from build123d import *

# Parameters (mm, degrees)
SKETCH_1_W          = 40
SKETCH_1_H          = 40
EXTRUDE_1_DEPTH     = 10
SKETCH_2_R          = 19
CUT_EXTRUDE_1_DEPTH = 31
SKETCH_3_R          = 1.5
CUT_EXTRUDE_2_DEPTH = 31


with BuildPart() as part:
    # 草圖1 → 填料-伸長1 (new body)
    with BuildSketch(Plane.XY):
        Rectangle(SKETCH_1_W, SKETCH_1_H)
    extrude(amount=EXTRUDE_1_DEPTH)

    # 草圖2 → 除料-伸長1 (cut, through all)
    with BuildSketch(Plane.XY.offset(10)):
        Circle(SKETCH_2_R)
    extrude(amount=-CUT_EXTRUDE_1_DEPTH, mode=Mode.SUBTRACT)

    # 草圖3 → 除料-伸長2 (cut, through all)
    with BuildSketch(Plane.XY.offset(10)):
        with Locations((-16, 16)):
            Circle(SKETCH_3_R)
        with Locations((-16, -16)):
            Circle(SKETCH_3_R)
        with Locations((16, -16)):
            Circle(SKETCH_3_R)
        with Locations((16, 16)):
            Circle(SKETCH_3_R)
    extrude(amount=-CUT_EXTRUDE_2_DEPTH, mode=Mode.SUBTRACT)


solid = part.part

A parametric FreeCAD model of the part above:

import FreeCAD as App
import Part
import Sketcher
from FreeCAD import Vector
Q = App.Units.Quantity


def add_polygon(sketch, points):
    """Adds a closed chain of lines whose ends are joined by coincident constraints."""
    first, n = sketch.GeometryCount, len(points)
    for a, b in zip(points, points[1:] + points[:1]):
        sketch.addGeometry(Part.LineSegment(App.Vector(*a, 0), App.Vector(*b, 0)), False)
    for i in range(n):
        sketch.addConstraint(Sketcher.Constraint("Coincident", first + i, 2, first + (i + 1) % n, 1))

doc = App.newDocument("Part")
params = doc.addObject("Spreadsheet::Sheet", "Params")
for row, (alias, value) in enumerate([
    ("sketch1_width", "40 mm"),
    ("pad1_length", "10 mm"),
    ("sketch2_diameter", "38 mm"),
    ("sketch3_diameter", "3 mm"),
], start=1):
    params.set(f"A{row}", alias)
    params.set(f"B{row}", "=" + value)
    params.setAlias(f"B{row}", alias)

body = doc.addObject("PartDesign::Body", "Body")

sketch1 = body.newObject("Sketcher::SketchObject", "Sketch")
sketch1.AttachmentSupport = (doc.getObject("XY_Plane"), [""])
sketch1.MapMode = "FlatFace"
add_polygon(sketch1, [(-20, 20), (-20, -20), (20, -20), (20, 20)])
sketch1.addConstraint([
    Sketcher.Constraint("Vertical", 0),
    Sketcher.Constraint("Horizontal", 1),
    Sketcher.Constraint("Vertical", 2),
    Sketcher.Constraint("Horizontal", 3),
    Sketcher.Constraint("Symmetric", 0, 2, 2, 2, -1, 1),
    Sketcher.Constraint("Equal", 3, 0),
    Sketcher.Constraint("DistanceX", 1, 1, 1, 2, Q("40 mm")),
])
sketch1.setExpression("Constraints[10]", "Params.sketch1_width")
pad1 = body.newObject("PartDesign::Pad", "Pad")
pad1.Profile = sketch1
pad1.setExpression("Length", "Params.pad1_length")

sketch2 = body.newObject("Sketcher::SketchObject", "Sketch001")
sketch2.AttachmentSupport = (doc.getObject("XY_Plane"), [""])
sketch2.MapMode = "FlatFace"
sketch2.AttachmentOffset = App.Placement(Vector(0, 0, 10), App.Rotation())
sketch2.addGeometry(Part.Circle(Vector(0, 0, 0), Vector(0, 0, 1), 19), False)
sketch2.addConstraint([
    Sketcher.Constraint("Coincident", 0, 3, -1, 1),
    Sketcher.Constraint("Diameter", 0, Q("38 mm")),
])
sketch2.setExpression("Constraints[1]", "Params.sketch2_diameter")
pocket1 = body.newObject("PartDesign::Pocket", "Pocket")
pocket1.Profile = sketch2
pocket1.Type = "ThroughAll"

sketch3 = body.newObject("Sketcher::SketchObject", "Sketch002")
sketch3.AttachmentSupport = (doc.getObject("XY_Plane"), [""])
sketch3.MapMode = "FlatFace"
sketch3.AttachmentOffset = App.Placement(Vector(0, 0, 10), App.Rotation())
sketch3.addGeometry([
    Part.Circle(Vector(-16, 16, 0), Vector(0, 0, 1), 1.5),
    Part.Circle(Vector(-16, -16, 0), Vector(0, 0, 1), 1.5),
    Part.Circle(Vector(16, -16, 0), Vector(0, 0, 1), 1.5),
    Part.Circle(Vector(16, 16, 0), Vector(0, 0, 1), 1.5),
], False)
sketch3.addConstraint([
    Sketcher.Constraint("Equal", 0, 1),
    Sketcher.Constraint("Equal", 1, 2),
    Sketcher.Constraint("Equal", 2, 3),
    Sketcher.Constraint("Symmetric", 0, 3, 2, 3, -1, 1),
    Sketcher.Constraint("Symmetric", 1, 3, 3, 3, -1, 1),
    Sketcher.Constraint("Symmetric", 1, 3, 2, 3, -2),
    Sketcher.Constraint("Diameter", 0, Q("3 mm")),
    Sketcher.Constraint("DistanceX", 0, 3, -1, 1, Q("16 mm")),
    Sketcher.Constraint("DistanceY", -1, 1, 0, 3, Q("16 mm")),
])
sketch3.setExpression("Constraints[6]", "Params.sketch3_diameter")
pocket2 = body.newObject("PartDesign::Pocket", "Pocket001")
pocket2.Profile = sketch3
pocket2.Type = "ThroughAll"

doc.recompute()
